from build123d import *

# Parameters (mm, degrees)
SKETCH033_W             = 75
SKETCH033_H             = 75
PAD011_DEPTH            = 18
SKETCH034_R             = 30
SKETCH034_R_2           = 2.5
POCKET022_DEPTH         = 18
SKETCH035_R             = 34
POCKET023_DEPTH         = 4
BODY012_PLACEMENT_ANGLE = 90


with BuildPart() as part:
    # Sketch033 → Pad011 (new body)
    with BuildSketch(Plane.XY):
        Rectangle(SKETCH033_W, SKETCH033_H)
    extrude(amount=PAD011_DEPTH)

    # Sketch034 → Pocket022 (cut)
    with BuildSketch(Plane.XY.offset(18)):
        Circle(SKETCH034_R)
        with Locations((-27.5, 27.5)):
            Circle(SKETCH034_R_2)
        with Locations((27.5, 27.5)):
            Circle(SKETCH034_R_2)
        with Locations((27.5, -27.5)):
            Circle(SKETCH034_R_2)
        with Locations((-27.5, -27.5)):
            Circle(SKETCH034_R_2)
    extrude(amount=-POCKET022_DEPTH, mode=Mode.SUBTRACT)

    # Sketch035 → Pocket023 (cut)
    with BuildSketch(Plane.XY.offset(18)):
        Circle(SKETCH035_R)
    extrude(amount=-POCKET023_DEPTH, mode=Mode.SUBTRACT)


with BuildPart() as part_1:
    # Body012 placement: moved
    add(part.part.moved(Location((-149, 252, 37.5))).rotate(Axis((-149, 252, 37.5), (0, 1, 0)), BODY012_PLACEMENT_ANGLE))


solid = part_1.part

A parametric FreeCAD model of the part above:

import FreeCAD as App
import Part
import Sketcher
Q = App.Units.Quantity


def add_polygon(sketch, points):
    """Adds a closed chain of lines whose ends are joined by coincident constraints."""
    first, n = sketch.GeometryCount, len(points)
    for a, b in zip(points, points[1:] + points[:1]):
        sketch.addGeometry(Part.LineSegment(App.Vector(*a, 0), App.Vector(*b, 0)), False)
    for i in range(n):
        sketch.addConstraint(Sketcher.Constraint("Coincident", first + i, 2, first + (i + 1) % n, 1))

doc = App.newDocument("Part")
body = doc.addObject("PartDesign::Body", "Body")

# Sketch on XY plane
sketch1 = doc.addObject("Sketcher::SketchObject", "Sketch")
body.addObject(sketch1)
sketch1.AttachmentSupport = (doc.XY_Plane, [""])
sketch1.MapMode = "FlatFace"
add_polygon(sketch1, [(-38, 38), (-38, -38), (38, -38), (38, 38)])  # lines 0-3
sketch1.addConstraint([
    Sketcher.Constraint("Vertical", 0),
    Sketcher.Constraint("Horizontal", 1),
    Sketcher.Constraint("Vertical", 2),
    Sketcher.Constraint("Horizontal", 3),
    Sketcher.Constraint("Symmetric", 0, 2, 2, 2, -1, 1),
    Sketcher.Constraint("Equal", 3, 0),
    Sketcher.Constraint("DistanceX", 1, 1, 1, 2, Q("75 mm")),
])
pad1 = doc.addObject("PartDesign::Pad", "Pad")
body.addObject(pad1)
pad1.Profile = sketch1
pad1.Length = 18

# Sketch on XY plane
sketch2 = doc.addObject("Sketcher::SketchObject", "Sketch001")
body.addObject(sketch2)
sketch2.AttachmentSupport = (doc.XY_Plane, [""])
sketch2.MapMode = "FlatFace"
sketch2.AttachmentOffset = App.Placement(App.Vector(0, 0, 18), App.Rotation())
sketch2.addGeometry([
    Part.Circle(App.Vector(0, 0, 0), App.Vector(0, 0, 1), 30),  # 0
    Part.Circle(App.Vector(-27.5, 27.5, 0), App.Vector(0, 0, 1), 2.5),  # 1
    Part.Circle(App.Vector(27.5, 27.5, 0), App.Vector(0, 0, 1), 2.5),  # 2
    Part.Circle(App.Vector(27.5, -27.5, 0), App.Vector(0, 0, 1), 2.5),  # 3
    Part.Circle(App.Vector(-27.5, -27.5, 0), App.Vector(0, 0, 1), 2.5),  # 4
], False)
sketch2.addConstraint([
    Sketcher.Constraint("Coincident", 0, 3, -1, 1),
    Sketcher.Constraint("Equal", 1, 2),
    Sketcher.Constraint("Equal", 2, 3),
    Sketcher.Constraint("Equal", 3, 4),
    Sketcher.Constraint("Symmetric", 1, 3, 3, 3, -1, 1),
    Sketcher.Constraint("Symmetric", 2, 3, 4, 3, -1, 1),
    Sketcher.Constraint("Symmetric", 1, 3, 2, 3, -2),
    Sketcher.Constraint("Diameter", 0, Q("60 mm")),
    Sketcher.Constraint("Diameter", 1, Q("5 mm")),
    Sketcher.Constraint("DistanceX", 1, 3, 2, 3, Q("55 mm")),
    Sketcher.Constraint("DistanceY", 3, 3, 2, 3, Q("55 mm")),
])
pocket1 = doc.addObject("PartDesign::Pocket", "Pocket")
body.addObject(pocket1)
pocket1.Profile = sketch2
pocket1.Length = 18

# Sketch on XY plane
sketch3 = doc.addObject("Sketcher::SketchObject", "Sketch002")
body.addObject(sketch3)
sketch3.AttachmentSupport = (doc.XY_Plane, [""])
sketch3.MapMode = "FlatFace"
sketch3.AttachmentOffset = App.Placement(App.Vector(0, 0, 18), App.Rotation())
sketch3.addGeometry(Part.Circle(App.Vector(0, 0, 0), App.Vector(0, 0, 1), 34), False)
sketch3.addConstraint([
    Sketcher.Constraint("Coincident", 0, 3, -1, 1),
    Sketcher.Constraint("Diameter", 0, Q("68 mm")),
])
pocket2 = doc.addObject("PartDesign::Pocket", "Pocket001")
body.addObject(pocket2)
pocket2.Profile = sketch3
pocket2.Length = 4
body2 = doc.addObject("PartDesign::Body", "Body001")
doc.recompute()

body.Placement = App.Placement(App.Vector(-149, 252, 37.5), App.Rotation(App.Vector(0, 1, 0), 90))
boolean = doc.addObject("PartDesign::Boolean", "Boolean")
body2.addObject(boolean)
boolean.Type = "Fuse"
boolean.addObjects([body])

doc.recompute()
